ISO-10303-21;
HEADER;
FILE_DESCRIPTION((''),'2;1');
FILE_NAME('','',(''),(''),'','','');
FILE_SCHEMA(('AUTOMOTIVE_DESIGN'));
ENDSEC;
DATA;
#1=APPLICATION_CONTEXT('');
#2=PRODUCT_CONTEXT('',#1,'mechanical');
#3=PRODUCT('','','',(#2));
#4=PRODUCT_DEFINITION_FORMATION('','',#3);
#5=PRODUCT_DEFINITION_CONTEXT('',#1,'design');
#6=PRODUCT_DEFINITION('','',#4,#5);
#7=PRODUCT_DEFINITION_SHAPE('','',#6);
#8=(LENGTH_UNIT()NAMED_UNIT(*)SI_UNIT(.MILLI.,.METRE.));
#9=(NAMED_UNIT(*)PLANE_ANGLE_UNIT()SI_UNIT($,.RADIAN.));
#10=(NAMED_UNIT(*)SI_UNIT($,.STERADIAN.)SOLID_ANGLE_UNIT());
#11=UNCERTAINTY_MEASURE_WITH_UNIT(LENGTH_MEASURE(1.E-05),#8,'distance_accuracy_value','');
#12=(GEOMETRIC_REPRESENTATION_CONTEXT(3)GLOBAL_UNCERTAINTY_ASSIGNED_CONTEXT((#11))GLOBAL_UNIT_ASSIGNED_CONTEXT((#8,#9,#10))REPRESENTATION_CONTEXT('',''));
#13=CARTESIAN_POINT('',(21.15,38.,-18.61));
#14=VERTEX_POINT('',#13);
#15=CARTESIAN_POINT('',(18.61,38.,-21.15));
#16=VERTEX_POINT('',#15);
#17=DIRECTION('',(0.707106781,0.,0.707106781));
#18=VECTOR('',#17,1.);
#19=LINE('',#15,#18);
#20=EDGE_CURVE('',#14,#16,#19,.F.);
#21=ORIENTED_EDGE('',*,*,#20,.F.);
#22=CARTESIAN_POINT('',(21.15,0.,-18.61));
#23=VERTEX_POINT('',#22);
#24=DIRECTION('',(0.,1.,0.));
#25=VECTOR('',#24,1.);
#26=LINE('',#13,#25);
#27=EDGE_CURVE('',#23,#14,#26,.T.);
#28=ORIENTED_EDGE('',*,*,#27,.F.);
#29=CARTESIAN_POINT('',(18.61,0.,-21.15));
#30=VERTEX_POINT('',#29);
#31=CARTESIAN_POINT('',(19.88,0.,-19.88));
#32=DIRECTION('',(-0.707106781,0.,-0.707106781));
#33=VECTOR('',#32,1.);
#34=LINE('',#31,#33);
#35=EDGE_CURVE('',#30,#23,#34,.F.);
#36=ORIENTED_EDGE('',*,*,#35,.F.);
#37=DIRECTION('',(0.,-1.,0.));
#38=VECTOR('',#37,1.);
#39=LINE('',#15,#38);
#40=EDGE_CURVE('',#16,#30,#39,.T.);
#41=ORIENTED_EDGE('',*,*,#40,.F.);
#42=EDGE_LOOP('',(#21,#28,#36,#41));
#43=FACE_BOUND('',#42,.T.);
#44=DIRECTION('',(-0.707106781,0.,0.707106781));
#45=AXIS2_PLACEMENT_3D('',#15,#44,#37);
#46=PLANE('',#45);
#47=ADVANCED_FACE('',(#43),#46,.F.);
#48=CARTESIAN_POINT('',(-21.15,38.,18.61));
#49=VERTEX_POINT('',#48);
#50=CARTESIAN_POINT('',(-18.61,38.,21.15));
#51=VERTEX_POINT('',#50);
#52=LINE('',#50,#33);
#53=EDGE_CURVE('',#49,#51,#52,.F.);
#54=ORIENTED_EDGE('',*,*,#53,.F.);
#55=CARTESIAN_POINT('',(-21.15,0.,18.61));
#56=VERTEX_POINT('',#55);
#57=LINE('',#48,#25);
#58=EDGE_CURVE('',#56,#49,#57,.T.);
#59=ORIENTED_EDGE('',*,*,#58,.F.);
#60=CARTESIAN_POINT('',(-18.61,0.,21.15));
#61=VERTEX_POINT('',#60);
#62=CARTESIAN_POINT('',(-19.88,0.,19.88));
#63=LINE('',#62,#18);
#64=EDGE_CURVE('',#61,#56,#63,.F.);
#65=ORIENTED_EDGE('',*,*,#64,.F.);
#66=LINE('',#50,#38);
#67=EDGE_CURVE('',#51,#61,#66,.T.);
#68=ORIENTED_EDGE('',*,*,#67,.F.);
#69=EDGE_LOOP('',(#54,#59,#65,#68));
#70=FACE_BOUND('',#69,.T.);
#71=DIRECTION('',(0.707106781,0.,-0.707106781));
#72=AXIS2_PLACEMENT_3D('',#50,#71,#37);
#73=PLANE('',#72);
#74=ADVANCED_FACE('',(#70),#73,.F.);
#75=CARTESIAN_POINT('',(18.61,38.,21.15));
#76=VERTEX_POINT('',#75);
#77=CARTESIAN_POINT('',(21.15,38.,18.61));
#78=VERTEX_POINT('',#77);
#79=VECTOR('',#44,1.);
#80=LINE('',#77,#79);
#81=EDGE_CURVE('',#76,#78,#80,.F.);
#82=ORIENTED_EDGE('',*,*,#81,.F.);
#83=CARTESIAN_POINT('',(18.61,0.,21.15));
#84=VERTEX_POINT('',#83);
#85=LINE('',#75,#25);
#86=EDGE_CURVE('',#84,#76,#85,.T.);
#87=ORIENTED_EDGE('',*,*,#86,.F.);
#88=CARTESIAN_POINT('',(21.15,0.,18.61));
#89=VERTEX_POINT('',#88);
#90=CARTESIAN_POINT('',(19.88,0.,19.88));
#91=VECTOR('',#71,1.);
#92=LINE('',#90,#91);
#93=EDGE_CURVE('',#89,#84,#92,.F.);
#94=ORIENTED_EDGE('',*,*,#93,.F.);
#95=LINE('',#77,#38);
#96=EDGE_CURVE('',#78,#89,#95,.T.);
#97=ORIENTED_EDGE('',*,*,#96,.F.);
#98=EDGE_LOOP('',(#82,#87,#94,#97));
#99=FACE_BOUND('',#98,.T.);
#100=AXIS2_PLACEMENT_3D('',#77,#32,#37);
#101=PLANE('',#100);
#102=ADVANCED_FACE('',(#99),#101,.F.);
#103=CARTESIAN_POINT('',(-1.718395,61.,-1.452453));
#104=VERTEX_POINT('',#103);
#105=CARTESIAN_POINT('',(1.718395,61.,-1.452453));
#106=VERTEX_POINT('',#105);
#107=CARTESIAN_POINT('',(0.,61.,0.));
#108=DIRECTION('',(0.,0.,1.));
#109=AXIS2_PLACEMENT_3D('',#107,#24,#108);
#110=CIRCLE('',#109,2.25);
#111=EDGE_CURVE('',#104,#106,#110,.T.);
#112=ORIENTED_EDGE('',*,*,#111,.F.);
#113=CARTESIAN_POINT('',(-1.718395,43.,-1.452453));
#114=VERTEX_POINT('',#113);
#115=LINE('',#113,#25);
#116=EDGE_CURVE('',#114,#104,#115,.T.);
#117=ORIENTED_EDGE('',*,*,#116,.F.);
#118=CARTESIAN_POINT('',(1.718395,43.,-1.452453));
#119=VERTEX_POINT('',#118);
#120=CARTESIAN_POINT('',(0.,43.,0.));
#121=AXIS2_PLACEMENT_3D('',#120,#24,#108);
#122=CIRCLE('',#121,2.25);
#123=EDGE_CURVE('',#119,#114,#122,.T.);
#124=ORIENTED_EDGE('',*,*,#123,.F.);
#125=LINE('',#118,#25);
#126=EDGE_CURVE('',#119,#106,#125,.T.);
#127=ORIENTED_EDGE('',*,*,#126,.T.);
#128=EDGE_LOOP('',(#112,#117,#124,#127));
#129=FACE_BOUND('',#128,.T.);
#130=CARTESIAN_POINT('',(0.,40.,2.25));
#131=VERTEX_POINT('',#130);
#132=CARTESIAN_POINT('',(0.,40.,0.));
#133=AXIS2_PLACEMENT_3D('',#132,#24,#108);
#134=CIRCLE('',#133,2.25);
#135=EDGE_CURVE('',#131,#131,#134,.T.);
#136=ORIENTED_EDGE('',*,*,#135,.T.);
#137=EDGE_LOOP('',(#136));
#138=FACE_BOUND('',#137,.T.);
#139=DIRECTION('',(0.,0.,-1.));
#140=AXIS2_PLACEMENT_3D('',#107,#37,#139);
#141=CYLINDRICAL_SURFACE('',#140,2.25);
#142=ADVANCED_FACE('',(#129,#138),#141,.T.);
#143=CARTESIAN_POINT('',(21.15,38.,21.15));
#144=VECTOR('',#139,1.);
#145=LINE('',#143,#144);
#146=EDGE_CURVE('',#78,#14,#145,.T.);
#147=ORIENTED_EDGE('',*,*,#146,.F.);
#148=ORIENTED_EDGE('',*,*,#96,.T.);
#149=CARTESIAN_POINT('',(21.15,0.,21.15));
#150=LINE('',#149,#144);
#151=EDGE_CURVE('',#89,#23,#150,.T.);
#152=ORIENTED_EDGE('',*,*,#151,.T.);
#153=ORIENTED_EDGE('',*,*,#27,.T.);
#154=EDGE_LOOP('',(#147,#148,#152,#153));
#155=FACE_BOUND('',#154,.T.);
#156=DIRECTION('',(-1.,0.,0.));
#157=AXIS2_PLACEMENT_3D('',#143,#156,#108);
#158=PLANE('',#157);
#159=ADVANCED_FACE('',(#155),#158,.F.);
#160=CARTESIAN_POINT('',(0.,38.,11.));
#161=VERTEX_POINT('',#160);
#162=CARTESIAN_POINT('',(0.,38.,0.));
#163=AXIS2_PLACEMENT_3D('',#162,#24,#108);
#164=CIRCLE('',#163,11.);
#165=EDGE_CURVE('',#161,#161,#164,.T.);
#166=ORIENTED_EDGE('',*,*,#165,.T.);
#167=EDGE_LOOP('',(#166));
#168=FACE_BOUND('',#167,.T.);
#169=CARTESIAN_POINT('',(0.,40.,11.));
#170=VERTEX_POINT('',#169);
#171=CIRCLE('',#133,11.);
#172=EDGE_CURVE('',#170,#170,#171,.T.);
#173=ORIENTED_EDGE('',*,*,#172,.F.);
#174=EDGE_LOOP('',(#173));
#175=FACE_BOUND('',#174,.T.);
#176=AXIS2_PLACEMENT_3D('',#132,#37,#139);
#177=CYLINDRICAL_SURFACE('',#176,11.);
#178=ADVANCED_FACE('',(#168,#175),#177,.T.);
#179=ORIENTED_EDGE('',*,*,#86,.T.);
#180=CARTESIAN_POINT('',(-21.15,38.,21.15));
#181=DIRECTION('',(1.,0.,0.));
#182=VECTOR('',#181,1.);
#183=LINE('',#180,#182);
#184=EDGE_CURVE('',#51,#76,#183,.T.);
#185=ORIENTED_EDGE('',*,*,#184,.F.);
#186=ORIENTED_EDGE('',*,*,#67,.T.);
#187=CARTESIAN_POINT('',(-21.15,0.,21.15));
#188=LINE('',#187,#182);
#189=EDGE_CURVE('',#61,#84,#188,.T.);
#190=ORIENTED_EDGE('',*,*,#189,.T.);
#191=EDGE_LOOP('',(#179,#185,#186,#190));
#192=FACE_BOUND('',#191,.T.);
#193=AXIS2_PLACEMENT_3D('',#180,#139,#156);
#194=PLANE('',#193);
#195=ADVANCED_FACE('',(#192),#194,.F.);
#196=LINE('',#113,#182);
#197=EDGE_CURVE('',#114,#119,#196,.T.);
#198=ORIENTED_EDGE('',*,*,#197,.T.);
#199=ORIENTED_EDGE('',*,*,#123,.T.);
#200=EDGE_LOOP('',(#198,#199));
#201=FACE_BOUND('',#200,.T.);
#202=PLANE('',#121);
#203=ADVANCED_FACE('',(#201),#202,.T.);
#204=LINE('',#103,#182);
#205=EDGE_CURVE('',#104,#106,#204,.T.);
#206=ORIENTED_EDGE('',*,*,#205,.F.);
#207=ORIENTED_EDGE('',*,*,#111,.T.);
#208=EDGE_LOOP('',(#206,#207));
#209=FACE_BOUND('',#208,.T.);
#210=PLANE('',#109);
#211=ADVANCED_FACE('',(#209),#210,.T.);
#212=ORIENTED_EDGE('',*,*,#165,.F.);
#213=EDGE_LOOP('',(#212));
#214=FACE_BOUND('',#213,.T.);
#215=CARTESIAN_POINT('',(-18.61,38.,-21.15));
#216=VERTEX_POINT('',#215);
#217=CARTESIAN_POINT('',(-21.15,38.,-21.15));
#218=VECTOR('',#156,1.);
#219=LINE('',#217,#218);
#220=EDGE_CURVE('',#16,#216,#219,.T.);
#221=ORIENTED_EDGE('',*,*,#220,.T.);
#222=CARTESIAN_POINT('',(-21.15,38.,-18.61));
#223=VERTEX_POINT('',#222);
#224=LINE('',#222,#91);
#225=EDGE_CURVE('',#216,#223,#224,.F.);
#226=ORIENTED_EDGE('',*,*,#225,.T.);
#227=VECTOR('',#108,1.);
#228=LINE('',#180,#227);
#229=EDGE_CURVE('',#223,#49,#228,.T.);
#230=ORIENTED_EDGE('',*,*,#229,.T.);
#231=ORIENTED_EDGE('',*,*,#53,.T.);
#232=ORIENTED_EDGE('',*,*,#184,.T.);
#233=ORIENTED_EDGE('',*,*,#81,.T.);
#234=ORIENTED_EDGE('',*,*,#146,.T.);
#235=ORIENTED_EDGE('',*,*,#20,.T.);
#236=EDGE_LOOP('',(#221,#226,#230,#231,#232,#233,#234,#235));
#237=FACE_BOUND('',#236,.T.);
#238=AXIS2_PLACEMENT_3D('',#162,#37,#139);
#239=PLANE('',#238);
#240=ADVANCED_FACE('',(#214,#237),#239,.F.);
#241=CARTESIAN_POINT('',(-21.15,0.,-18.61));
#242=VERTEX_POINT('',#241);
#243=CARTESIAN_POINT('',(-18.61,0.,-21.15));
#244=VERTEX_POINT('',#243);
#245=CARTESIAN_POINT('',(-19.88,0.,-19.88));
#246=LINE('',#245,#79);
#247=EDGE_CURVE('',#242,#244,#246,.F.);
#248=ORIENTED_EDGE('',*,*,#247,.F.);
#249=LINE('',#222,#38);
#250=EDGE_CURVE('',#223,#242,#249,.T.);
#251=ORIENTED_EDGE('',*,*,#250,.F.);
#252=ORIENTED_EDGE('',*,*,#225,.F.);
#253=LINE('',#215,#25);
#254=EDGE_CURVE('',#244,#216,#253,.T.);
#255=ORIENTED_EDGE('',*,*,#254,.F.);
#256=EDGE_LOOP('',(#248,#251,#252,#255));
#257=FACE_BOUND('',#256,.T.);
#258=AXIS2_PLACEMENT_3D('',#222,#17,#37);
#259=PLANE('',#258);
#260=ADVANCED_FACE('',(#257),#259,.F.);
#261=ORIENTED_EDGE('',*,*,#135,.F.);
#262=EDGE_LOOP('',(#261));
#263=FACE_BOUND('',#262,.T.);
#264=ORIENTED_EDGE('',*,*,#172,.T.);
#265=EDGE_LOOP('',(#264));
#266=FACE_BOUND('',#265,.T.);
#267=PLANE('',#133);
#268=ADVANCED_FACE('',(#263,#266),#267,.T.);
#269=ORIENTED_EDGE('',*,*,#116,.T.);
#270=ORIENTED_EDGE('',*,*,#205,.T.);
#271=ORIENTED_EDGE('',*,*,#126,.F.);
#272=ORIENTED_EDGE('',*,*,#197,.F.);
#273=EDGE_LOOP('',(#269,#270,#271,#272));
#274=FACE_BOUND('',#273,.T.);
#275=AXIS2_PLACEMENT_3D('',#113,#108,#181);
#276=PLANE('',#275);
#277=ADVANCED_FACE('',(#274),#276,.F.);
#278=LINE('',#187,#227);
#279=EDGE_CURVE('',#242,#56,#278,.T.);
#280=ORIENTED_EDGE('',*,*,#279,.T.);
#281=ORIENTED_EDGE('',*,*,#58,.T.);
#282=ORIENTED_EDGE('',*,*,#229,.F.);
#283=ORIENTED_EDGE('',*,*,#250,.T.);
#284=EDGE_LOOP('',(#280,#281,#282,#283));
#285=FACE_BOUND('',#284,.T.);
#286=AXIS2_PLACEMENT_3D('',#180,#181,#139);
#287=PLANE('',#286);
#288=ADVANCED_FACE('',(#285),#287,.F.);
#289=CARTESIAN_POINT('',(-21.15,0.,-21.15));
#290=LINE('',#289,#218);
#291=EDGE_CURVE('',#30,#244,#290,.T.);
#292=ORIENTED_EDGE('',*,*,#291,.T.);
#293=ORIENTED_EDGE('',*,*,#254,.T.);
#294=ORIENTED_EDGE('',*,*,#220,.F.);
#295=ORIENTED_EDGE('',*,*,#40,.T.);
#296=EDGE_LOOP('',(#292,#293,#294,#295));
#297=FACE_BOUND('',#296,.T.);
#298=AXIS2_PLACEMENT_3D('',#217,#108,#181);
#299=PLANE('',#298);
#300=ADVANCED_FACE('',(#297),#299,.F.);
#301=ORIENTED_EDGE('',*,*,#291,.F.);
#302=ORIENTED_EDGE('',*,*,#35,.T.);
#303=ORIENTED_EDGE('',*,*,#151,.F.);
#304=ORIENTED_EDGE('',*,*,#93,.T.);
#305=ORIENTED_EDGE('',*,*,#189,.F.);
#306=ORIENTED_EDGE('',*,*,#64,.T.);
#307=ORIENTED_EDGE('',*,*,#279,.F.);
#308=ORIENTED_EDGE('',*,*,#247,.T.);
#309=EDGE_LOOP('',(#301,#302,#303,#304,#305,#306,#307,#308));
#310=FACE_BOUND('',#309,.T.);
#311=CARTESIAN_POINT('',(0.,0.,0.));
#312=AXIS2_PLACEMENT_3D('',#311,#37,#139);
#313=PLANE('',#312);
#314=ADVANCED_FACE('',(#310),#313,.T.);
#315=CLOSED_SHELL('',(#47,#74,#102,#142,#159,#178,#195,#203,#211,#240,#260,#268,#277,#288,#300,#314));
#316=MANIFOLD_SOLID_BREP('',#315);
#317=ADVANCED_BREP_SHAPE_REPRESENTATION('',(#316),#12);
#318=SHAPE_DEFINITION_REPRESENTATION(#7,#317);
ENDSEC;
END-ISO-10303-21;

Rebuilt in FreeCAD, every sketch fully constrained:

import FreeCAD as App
import Part
import Sketcher

V = App.Vector


def edges_at(feature, points):
    """Names of the edges that pass closest to the given points."""
    edges = feature.Shape.Edges
    near = lambda p: min(range(len(edges)), key=lambda i: edges[i].distToShape(Part.Vertex(*p))[0])
    return sorted({f"Edge{near(p) + 1}" for p in points})

doc = App.newDocument("Part")
body = doc.addObject("PartDesign::Body", "Body")

# Sketch on XZ plane
sketch1 = body.newObject("Sketcher::SketchObject", "Sketch")
sketch1.AttachmentSupport = (doc.getObject("XZ_Plane"), [""])
sketch1.MapMode = "FlatFace"
sketch1.addGeometry([
    Part.LineSegment(V(-21, -21, 0), V(-21, 21, 0)),
    Part.LineSegment(V(-21, 21, 0), V(21, 21, 0)),
    Part.LineSegment(V(21, 21, 0), V(21, -21, 0)),
    Part.LineSegment(V(21, -21, 0), V(-21, -21, 0)),
], False)
sketch1.addConstraint([
    Sketcher.Constraint("Coincident", 0, 2, 1, 1),
    Sketcher.Constraint("Coincident", 1, 2, 2, 1),
    Sketcher.Constraint("Coincident", 2, 2, 3, 1),
    Sketcher.Constraint("Coincident", 3, 2, 0, 1),
    Sketcher.Constraint("Vertical", 0),
    Sketcher.Constraint("Horizontal", 1),
    Sketcher.Constraint("Vertical", 2),
    Sketcher.Constraint("Horizontal", 3),
    Sketcher.Constraint("Symmetric", 0, 2, 2, 2, -1, 1),
    Sketcher.Constraint("Equal", 3, 0),
    Sketcher.Constraint("DistanceX", 1, 1, 1, 2, 42.3),
])
pad1 = body.newObject("PartDesign::Pad", "Pad")
pad1.Profile = sketch1
pad1.Length = 38
pad1.Reversed = True
doc.recompute()

chamfer = body.newObject("PartDesign::Chamfer", "Chamfer")
chamfer.Base = (pad1, edges_at(pad1, [
    (21.15, 19, 21.15),
    (-21.15, 19, 21.15),
    (-21.15, 19, -21.15),
    (21.15, 19, -21.15),
]))
chamfer.Size = 2.54

# Sketch on XZ plane
sketch2 = body.newObject("Sketcher::SketchObject", "Sketch001")
sketch2.AttachmentSupport = (doc.getObject("XZ_Plane"), [""])
sketch2.MapMode = "FlatFace"
sketch2.AttachmentOffset = App.Placement(V(0, 0, -38), App.Rotation())
sketch2.addGeometry(Part.Circle(V(0, 0, 0), V(0, 0, 1), 11), False)
sketch2.addConstraint([
    Sketcher.Constraint("Coincident", 0, 3, -1, 1),
    Sketcher.Constraint("Diameter", 0, 22.0),
])
pad2 = body.newObject("PartDesign::Pad", "Pad001")
pad2.Profile = sketch2
pad2.Length = 2
pad2.Reversed = True

# Sketch on XZ plane
sketch3 = body.newObject("Sketcher::SketchObject", "Sketch002")
sketch3.AttachmentSupport = (doc.getObject("XZ_Plane"), [""])
sketch3.MapMode = "FlatFace"
sketch3.AttachmentOffset = App.Placement(V(0, 0, -40), App.Rotation())
sketch3.addGeometry(Part.Circle(V(0, 0, 0), V(0, 0, 1), 2.2), False)
sketch3.addConstraint([
    Sketcher.Constraint("Coincident", 0, 3, -1, 1),
    Sketcher.Constraint("Diameter", 0, 4.5),
])
pad3 = body.newObject("PartDesign::Pad", "Pad002")
pad3.Profile = sketch3
pad3.Length = 21
pad3.Reversed = True

# Sketch on XZ plane
sketch4 = body.newObject("Sketcher::SketchObject", "Sketch003")
sketch4.AttachmentSupport = (doc.getObject("XZ_Plane"), [""])
sketch4.MapMode = "FlatFace"
sketch4.AttachmentOffset = App.Placement(V(0, 0, -61), App.Rotation())
sketch4.addGeometry([
    Part.LineSegment(V(-1.7, -3, 0), V(-1.7, -1.5, 0)),
    Part.LineSegment(V(-1.7, -1.5, 0), V(1.7, -1.5, 0)),
    Part.LineSegment(V(1.7, -1.5, 0), V(1.7, -3, 0)),
    Part.LineSegment(V(1.7, -3, 0), V(-1.7, -3, 0)),
], False)
sketch4.addConstraint([
    Sketcher.Constraint("Coincident", 0, 2, 1, 1),
    Sketcher.Constraint("Coincident", 1, 2, 2, 1),
    Sketcher.Constraint("Coincident", 2, 2, 3, 1),
    Sketcher.Constraint("Coincident", 3, 2, 0, 1),
    Sketcher.Constraint("Vertical", 0),
    Sketcher.Constraint("Horizontal", 1),
    Sketcher.Constraint("Vertical", 2),
    Sketcher.Constraint("Horizontal", 3),
    Sketcher.Constraint("DistanceX", 1, 1, 1, 2, 3.43679),
    Sketcher.Constraint("DistanceY", 0, 1, 0, 2, 1.595094),
    Sketcher.Constraint("DistanceX", 0, 2, -1, 1, 1.718395),
    Sketcher.Constraint("DistanceY", 0, 2, -1, 1, 1.452453),
])
pocket1 = body.newObject("PartDesign::Pocket", "Pocket")
pocket1.Profile = sketch4
pocket1.Length = 18
pocket1.Reversed = True

doc.recompute()
